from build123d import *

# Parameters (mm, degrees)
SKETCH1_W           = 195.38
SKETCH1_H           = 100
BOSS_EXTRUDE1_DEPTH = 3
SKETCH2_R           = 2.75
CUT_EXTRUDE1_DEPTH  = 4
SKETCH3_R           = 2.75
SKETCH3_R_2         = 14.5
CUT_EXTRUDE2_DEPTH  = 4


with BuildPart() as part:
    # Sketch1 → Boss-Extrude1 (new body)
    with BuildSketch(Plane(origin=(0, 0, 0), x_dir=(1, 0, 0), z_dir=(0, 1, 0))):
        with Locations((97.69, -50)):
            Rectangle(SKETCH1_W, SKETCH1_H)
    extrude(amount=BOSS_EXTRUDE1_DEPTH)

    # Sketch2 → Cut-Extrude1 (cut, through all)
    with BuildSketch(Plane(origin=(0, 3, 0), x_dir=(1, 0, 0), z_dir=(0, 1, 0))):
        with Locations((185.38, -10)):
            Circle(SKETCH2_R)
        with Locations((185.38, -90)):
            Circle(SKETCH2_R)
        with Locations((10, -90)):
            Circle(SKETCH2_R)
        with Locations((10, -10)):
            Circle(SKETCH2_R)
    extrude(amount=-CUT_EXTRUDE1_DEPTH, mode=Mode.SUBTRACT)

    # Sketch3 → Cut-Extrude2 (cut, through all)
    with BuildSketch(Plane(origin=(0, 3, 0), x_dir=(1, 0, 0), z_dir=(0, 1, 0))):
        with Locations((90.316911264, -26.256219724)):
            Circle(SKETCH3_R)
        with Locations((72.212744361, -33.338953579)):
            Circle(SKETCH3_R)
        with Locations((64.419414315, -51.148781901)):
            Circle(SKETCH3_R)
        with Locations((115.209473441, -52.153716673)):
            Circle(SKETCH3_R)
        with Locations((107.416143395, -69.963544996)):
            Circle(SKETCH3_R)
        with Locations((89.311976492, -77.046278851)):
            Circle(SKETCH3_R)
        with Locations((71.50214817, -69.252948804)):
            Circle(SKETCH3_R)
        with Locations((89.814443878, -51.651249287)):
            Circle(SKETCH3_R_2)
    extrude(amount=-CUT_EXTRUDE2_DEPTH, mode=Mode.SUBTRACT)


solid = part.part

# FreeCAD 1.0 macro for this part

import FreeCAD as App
import Part
import Sketcher
from FreeCAD import Vector

doc = App.newDocument("Part")
params = doc.addObject("Spreadsheet::Sheet", "Params")
for row, (alias, value) in enumerate([
    ("sketch1_height", "100 mm"),
    ("sketch1_width", "195.38 mm"),
    ("pad1_length", "3 mm"),
    ("sketch2_diameter", "5.5 mm"),
    ("sketch3_diameter", "29 mm"),
    ("sketch3_diameter2", "5.5 mm"),
], start=1):
    params.set(f"A{row}", alias)
    params.set(f"B{row}", "=" + value)
    params.setAlias(f"B{row}", alias)

body = doc.addObject("PartDesign::Body", "Body")

sketch1 = body.newObject("Sketcher::SketchObject", "Sketch")
sketch1.AttachmentSupport = (doc.getObject("XZ_Plane"), [""])
sketch1.MapMode = "FlatFace"
sketch1.addGeometry(Part.LineSegment(Vector(0, 0, 0), Vector(0, 100, 0)), False)
sketch1.addGeometry(Part.LineSegment(Vector(0, 100, 0), Vector(195, 100, 0)), False)
sketch1.addGeometry(Part.LineSegment(Vector(195, 100, 0), Vector(195, 0, 0)), False)
sketch1.addGeometry(Part.LineSegment(Vector(195, 0, 0), Vector(0, 0, 0)), False)
sketch1.addConstraint(Sketcher.Constraint("Coincident", 0, 2, 1, 1))
sketch1.addConstraint(Sketcher.Constraint("Coincident", 1, 2, 2, 1))
sketch1.addConstraint(Sketcher.Constraint("Coincident", 2, 2, 3, 1))
sketch1.addConstraint(Sketcher.Constraint("Coincident", 3, 2, 0, 1))
sketch1.addConstraint(Sketcher.Constraint("Vertical", 0))
sketch1.addConstraint(Sketcher.Constraint("Horizontal", 1))
sketch1.addConstraint(Sketcher.Constraint("Vertical", 2))
sketch1.addConstraint(Sketcher.Constraint("Horizontal", 3))
sketch1.addConstraint(Sketcher.Constraint("Coincident", 3, 2, -1, 1))
sketch1.addConstraint(Sketcher.Constraint("DistanceY", 0, 1, 0, 2, 100.0))
sketch1.addConstraint(Sketcher.Constraint("DistanceX", 1, 1, 1, 2, 195.38))
sketch1.setExpression("Constraints[9]", "Params.sketch1_height")
sketch1.setExpression("Constraints[10]", "Params.sketch1_width")
pad1 = body.newObject("PartDesign::Pad", "Pad")
pad1.Profile = sketch1
pad1.setExpression("Length", "Params.pad1_length")
pad1.Reversed = True

sketch2 = body.newObject("Sketcher::SketchObject", "Sketch001")
sketch2.AttachmentSupport = (doc.getObject("XZ_Plane"), [""])
sketch2.MapMode = "FlatFace"
sketch2.AttachmentOffset = App.Placement(Vector(0, 0, -3), App.Rotation())
sketch2.addGeometry(Part.Circle(Vector(185.4, 10, 0), Vector(0, 0, 1), 2.8), False)
sketch2.addGeometry(Part.Circle(Vector(185.4, 90, 0), Vector(0, 0, 1), 2.8), False)
sketch2.addGeometry(Part.Circle(Vector(10, 90, 0), Vector(0, 0, 1), 2.8), False)
sketch2.addGeometry(Part.Circle(Vector(10, 10, 0), Vector(0, 0, 1), 2.8), False)
sketch2.addConstraint(Sketcher.Constraint("Equal", 0, 1))
sketch2.addConstraint(Sketcher.Constraint("Equal", 1, 2))
sketch2.addConstraint(Sketcher.Constraint("Equal", 2, 3))
sketch2.addConstraint(Sketcher.Constraint("Horizontal", 1, 3, 2, 3))
sketch2.addConstraint(Sketcher.Constraint("Horizontal", 0, 3, 3, 3))
sketch2.addConstraint(Sketcher.Constraint("Vertical", 0, 3, 1, 3))
sketch2.addConstraint(Sketcher.Constraint("Vertical", 2, 3, 3, 3))
sketch2.addConstraint(Sketcher.Constraint("Diameter", 0, 5.5))
sketch2.addConstraint(Sketcher.Constraint("DistanceY", -1, 1, 0, 3, 10.0))
sketch2.addConstraint(Sketcher.Constraint("DistanceY", -1, 1, 1, 3, 90.0))
sketch2.addConstraint(Sketcher.Constraint("DistanceX", -1, 1, 2, 3, 10.0))
sketch2.addConstraint(Sketcher.Constraint("DistanceX", -1, 1, 0, 3, 185.38))
sketch2.setExpression("Constraints[7]", "Params.sketch2_diameter")
pocket1 = body.newObject("PartDesign::Pocket", "Pocket")
pocket1.Profile = sketch2
pocket1.Type = "ThroughAll"
pocket1.Reversed = True

sketch3 = body.newObject("Sketcher::SketchObject", "Sketch002")
sketch3.AttachmentSupport = (doc.getObject("XZ_Plane"), [""])
sketch3.MapMode = "FlatFace"
sketch3.AttachmentOffset = App.Placement(Vector(0, 0, -3), App.Rotation())
sketch3.addGeometry(Part.Circle(Vector(90.3, 26.3, 0), Vector(0, 0, 1), 2.8), False)
sketch3.addGeometry(Part.Circle(Vector(72.2, 33.3, 0), Vector(0, 0, 1), 2.8), False)
sketch3.addGeometry(Part.Circle(Vector(64.4, 51.1, 0), Vector(0, 0, 1), 2.8), False)
sketch3.addGeometry(Part.Circle(Vector(115.2, 52.2, 0), Vector(0, 0, 1), 2.8), False)
sketch3.addGeometry(Part.Circle(Vector(107.4, 70, 0), Vector(0, 0, 1), 2.8), False)
sketch3.addGeometry(Part.Circle(Vector(89.3, 77, 0), Vector(0, 0, 1), 2.8), False)
sketch3.addGeometry(Part.Circle(Vector(71.5, 69.3, 0), Vector(0, 0, 1), 2.8), False)
sketch3.addGeometry(Part.Circle(Vector(89.8, 51.7, 0), Vector(0, 0, 1), 14.5), False)
sketch3.addConstraint(Sketcher.Constraint("Equal", 0, 1))
sketch3.addConstraint(Sketcher.Constraint("Equal", 1, 2))
sketch3.addConstraint(Sketcher.Constraint("Equal", 2, 3))
sketch3.addConstraint(Sketcher.Constraint("Equal", 3, 4))
sketch3.addConstraint(Sketcher.Constraint("Equal", 4, 5))
sketch3.addConstraint(Sketcher.Constraint("Equal", 5, 6))
sketch3.addConstraint(Sketcher.Constraint("Diameter", 7, 29.0))
sketch3.addConstraint(Sketcher.Constraint("Diameter", 0, 5.5))
sketch3.addConstraint(Sketcher.Constraint("DistanceX", 1, 3, 4, 3, 35.203399))
sketch3.addConstraint(Sketcher.Constraint("DistanceX", 1, 3, 7, 3, 17.6017))
sketch3.addConstraint(Sketcher.Constraint("DistanceY", 7, 3, 6, 3, 17.6017))
sketch3.addConstraint(Sketcher.Constraint("DistanceX", -1, 1, 0, 3, 90.316911))
sketch3.addConstraint(Sketcher.Constraint("DistanceY", -1, 1, 0, 3, 26.25622))
sketch3.addConstraint(Sketcher.Constraint("DistanceY", -1, 1, 2, 3, 51.148782))
sketch3.addConstraint(Sketcher.Constraint("DistanceY", -1, 1, 5, 3, 77.046279))
sketch3.addConstraint(Sketcher.Constraint("DistanceX", -1, 1, 6, 3, 71.502148))
sketch3.addConstraint(Sketcher.Constraint("DistanceY", -1, 1, 6, 3, 69.252949))
sketch3.addConstraint(Sketcher.Constraint("DistanceX", 2, 3, 1, 3, 7.79333))
sketch3.addConstraint(Sketcher.Constraint("DistanceY", 1, 3, 2, 3, 17.809828))
sketch3.addConstraint(Sketcher.Constraint("DistanceX", 1, 3, 3, 3, 42.996729))
sketch3.addConstraint(Sketcher.Constraint("DistanceY", 3, 3, 4, 3, 17.809828))
sketch3.addConstraint(Sketcher.Constraint("DistanceY", 1, 3, 4, 3, 36.624591))
sketch3.addConstraint(Sketcher.Constraint("DistanceX", 6, 3, 5, 3, 17.809828))
sketch3.addConstraint(Sketcher.Constraint("DistanceX", -1, 1, 1, 3, 72.212744))
sketch3.setExpression("Constraints[6]", "Params.sketch3_diameter")
sketch3.setExpression("Constraints[7]", "Params.sketch3_diameter2")
pocket2 = body.newObject("PartDesign::Pocket", "Pocket001")
pocket2.Profile = sketch3
pocket2.Type = "ThroughAll"
pocket2.Reversed = True

doc.recompute()
